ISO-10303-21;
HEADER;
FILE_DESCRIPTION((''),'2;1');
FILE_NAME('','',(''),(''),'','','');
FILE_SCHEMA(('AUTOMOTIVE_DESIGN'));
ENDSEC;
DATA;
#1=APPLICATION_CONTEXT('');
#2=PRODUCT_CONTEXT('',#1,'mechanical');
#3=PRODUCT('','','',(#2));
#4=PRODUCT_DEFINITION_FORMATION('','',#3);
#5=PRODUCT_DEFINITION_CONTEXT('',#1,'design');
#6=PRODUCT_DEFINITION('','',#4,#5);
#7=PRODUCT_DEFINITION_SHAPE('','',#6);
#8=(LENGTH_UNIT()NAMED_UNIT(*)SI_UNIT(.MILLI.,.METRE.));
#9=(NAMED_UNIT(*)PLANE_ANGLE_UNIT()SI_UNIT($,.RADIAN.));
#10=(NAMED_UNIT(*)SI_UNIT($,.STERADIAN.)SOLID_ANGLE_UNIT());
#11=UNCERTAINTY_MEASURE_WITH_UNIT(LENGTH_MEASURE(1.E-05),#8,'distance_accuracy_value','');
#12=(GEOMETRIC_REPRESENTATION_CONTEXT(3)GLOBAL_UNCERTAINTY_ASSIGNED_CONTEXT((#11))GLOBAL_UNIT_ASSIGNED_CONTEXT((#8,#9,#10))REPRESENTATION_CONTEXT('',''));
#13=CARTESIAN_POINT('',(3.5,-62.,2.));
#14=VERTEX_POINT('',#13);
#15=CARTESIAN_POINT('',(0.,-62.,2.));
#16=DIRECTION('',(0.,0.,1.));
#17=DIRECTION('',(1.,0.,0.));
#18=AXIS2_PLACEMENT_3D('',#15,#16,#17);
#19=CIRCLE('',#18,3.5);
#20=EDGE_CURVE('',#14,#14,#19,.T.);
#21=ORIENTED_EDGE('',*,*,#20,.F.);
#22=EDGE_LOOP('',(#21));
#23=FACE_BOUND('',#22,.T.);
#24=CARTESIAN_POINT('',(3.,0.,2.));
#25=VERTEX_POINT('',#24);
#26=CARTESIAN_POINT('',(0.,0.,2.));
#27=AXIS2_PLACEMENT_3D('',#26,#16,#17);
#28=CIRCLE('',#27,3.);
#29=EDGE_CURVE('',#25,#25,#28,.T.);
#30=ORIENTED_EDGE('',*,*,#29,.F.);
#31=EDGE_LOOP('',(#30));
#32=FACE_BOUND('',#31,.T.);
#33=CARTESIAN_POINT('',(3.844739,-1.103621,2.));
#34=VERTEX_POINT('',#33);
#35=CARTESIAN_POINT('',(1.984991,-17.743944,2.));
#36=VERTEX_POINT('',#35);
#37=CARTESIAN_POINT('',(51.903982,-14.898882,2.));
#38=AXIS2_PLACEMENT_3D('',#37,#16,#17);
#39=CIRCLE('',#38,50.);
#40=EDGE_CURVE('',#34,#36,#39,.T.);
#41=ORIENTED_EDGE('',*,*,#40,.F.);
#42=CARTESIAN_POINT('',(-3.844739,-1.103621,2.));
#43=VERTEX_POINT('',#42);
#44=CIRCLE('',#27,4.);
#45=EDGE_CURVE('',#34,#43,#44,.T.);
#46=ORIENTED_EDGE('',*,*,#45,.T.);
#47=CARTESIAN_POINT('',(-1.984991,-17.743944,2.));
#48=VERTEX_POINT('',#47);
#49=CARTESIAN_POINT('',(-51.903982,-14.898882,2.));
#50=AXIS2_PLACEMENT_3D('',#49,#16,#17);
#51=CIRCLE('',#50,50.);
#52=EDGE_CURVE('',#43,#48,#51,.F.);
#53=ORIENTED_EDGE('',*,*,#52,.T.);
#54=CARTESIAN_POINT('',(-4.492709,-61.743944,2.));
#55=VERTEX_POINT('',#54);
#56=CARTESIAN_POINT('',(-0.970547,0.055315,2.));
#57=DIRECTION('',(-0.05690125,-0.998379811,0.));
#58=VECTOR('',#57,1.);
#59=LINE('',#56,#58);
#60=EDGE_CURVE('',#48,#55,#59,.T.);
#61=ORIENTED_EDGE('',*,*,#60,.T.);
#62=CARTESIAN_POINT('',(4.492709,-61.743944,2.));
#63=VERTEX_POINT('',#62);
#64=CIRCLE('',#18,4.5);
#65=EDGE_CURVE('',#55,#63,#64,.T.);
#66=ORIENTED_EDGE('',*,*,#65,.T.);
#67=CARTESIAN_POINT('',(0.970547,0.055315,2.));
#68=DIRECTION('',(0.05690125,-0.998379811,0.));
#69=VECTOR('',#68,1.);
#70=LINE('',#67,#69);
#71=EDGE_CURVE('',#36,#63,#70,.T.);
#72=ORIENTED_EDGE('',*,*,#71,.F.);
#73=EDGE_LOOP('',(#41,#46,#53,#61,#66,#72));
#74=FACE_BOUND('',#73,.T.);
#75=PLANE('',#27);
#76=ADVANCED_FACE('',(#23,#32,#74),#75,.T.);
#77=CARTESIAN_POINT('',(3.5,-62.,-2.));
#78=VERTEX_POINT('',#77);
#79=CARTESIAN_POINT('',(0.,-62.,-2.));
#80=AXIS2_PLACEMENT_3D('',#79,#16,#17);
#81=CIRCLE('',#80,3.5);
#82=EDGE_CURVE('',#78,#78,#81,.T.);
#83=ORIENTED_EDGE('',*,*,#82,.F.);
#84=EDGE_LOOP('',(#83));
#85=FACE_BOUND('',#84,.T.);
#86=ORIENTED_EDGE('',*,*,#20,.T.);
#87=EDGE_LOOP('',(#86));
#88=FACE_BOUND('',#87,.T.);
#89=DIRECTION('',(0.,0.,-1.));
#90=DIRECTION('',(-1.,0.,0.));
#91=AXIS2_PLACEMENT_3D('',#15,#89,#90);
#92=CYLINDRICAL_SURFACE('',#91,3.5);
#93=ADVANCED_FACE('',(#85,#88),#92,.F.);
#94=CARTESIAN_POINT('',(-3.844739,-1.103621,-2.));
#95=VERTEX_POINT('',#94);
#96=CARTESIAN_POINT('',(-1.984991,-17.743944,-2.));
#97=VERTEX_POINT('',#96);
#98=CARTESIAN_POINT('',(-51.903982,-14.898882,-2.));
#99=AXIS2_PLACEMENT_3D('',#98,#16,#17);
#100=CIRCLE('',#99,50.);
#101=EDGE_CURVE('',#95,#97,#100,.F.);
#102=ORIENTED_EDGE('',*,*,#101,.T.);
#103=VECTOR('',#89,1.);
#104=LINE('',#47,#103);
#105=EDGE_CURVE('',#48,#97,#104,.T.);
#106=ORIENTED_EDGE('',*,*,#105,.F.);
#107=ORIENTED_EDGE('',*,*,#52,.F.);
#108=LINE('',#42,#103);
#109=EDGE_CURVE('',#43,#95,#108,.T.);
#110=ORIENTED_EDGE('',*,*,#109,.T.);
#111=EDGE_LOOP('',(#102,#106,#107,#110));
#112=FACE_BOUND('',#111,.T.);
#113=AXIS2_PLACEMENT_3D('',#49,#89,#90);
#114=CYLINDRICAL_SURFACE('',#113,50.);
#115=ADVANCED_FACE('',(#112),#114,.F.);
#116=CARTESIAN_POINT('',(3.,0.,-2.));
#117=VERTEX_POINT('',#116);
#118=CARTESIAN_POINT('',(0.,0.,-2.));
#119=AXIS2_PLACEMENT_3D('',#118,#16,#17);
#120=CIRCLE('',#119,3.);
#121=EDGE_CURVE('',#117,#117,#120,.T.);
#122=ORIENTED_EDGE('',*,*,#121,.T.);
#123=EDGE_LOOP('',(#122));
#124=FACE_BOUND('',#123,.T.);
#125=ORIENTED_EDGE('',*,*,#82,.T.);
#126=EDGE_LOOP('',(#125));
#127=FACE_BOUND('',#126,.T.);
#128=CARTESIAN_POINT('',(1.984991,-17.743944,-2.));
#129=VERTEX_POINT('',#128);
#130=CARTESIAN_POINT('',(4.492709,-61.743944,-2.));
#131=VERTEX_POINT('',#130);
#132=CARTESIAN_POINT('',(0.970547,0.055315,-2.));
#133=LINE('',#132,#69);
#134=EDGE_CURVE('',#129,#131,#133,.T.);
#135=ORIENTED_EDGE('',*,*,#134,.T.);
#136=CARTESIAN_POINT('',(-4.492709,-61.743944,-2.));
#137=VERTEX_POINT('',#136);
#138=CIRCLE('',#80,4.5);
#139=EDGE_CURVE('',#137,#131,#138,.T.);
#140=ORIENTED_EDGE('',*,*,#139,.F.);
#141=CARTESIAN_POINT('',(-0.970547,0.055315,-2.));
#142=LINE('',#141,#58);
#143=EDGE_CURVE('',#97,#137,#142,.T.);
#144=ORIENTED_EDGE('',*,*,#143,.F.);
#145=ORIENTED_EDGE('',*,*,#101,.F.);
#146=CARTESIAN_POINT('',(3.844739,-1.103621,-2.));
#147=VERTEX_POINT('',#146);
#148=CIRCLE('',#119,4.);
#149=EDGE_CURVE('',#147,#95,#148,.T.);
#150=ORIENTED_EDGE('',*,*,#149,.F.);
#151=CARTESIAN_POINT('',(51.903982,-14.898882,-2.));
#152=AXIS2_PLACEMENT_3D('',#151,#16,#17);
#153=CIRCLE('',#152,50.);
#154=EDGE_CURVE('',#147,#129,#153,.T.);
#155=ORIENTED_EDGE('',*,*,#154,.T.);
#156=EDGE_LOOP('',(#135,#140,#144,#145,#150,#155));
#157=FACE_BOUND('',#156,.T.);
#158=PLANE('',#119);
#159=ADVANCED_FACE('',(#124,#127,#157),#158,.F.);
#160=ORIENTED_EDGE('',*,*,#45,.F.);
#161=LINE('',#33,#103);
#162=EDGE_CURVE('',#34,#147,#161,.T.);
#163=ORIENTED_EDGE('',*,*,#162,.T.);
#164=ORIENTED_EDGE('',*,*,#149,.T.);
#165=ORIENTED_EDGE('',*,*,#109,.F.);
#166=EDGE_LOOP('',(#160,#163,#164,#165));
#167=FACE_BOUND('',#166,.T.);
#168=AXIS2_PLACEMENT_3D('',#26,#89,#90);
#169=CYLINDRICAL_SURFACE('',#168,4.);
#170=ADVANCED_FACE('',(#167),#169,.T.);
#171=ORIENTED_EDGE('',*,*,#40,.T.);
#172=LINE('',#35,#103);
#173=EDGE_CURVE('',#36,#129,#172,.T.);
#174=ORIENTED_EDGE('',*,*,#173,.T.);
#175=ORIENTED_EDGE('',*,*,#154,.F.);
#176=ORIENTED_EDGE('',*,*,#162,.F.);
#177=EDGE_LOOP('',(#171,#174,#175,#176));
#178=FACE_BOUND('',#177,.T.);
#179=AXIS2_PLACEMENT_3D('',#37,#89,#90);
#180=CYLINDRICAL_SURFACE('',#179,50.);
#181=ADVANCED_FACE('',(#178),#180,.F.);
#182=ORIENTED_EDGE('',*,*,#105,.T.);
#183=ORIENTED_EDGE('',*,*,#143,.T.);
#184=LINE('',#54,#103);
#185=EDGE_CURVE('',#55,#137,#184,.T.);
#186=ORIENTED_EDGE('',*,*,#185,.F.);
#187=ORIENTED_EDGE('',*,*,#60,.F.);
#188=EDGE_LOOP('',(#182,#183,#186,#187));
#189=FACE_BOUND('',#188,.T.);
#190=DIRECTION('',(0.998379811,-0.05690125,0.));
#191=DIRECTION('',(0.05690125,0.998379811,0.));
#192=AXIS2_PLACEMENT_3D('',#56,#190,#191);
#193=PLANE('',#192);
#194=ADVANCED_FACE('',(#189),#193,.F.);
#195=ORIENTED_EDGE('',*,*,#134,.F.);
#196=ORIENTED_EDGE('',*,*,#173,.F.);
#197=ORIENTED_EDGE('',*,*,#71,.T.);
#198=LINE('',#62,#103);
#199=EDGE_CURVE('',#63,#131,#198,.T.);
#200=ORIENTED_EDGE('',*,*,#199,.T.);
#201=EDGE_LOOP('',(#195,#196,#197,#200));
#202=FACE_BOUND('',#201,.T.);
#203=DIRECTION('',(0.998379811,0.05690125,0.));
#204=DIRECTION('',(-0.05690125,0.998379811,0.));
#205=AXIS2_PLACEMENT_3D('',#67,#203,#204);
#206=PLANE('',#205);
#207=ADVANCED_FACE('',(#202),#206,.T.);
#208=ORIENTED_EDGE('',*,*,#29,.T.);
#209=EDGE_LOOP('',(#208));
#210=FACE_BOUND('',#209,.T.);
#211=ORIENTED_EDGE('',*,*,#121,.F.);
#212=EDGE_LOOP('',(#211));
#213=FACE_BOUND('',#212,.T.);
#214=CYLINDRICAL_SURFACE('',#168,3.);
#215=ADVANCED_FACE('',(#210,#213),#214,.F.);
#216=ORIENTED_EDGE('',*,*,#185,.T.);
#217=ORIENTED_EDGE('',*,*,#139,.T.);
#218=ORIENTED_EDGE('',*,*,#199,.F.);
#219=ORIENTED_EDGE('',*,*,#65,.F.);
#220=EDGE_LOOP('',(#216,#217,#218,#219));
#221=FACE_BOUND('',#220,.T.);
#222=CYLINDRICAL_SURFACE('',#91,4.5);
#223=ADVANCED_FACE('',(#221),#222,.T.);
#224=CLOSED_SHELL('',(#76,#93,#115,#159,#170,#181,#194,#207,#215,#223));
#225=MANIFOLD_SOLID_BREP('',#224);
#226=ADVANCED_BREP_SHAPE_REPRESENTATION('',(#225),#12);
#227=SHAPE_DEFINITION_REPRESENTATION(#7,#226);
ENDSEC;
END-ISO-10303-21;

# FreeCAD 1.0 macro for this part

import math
import FreeCAD as App
import Part
import Sketcher
Q = App.Units.Quantity

doc = App.newDocument("Part")
body = doc.addObject("PartDesign::Body", "Body")

sketch1 = body.newObject("Sketcher::SketchObject", "Sketch")
sketch1.AttachmentSupport = (doc.getObject("XY_Plane"), [""])
sketch1.MapMode = "FlatFace"
sketch1.addGeometry(Part.ArcOfCircle(Part.Circle(App.Vector(-51.9, -14.9, 0), App.Vector(0, 0, 1), 50), math.radians(-3.26), math.radians(16.02)), False)
sketch1.addGeometry(Part.LineSegment(App.Vector(-2, -17.7, 0), App.Vector(-4.5, -61.7, 0)), False)
sketch1.addGeometry(Part.ArcOfCircle(Part.Circle(App.Vector(0, -62, 0), App.Vector(0, 0, 1), 4.5), math.radians(177), math.radians(363)), False)
sketch1.addGeometry(Part.LineSegment(App.Vector(4.5, -61.7, 0), App.Vector(2, -17.7, 0)), False)
sketch1.addGeometry(Part.ArcOfCircle(Part.Circle(App.Vector(51.9, -14.9, 0), App.Vector(0, 0, 1), 50), math.radians(163.98), math.radians(183.26)), False)
sketch1.addGeometry(Part.ArcOfCircle(Part.Circle(App.Vector(0, 0, 0), App.Vector(0, 0, 1), 4), math.radians(-16), math.radians(196)), False)
sketch1.addGeometry(Part.Circle(App.Vector(0, -62, 0), App.Vector(0, 0, 1), 3.5), False)
sketch1.addGeometry(Part.Circle(App.Vector(0, 0, 0), App.Vector(0, 0, 1), 3), False)
sketch1.addConstraint(Sketcher.Constraint("Tangent", 0, 1, 1, 1))
sketch1.addConstraint(Sketcher.Constraint("Tangent", 1, 2, 2, 1))
sketch1.addConstraint(Sketcher.Constraint("Tangent", 2, 2, 3, 1))
sketch1.addConstraint(Sketcher.Constraint("Tangent", 3, 2, 4, 2))
sketch1.addConstraint(Sketcher.Constraint("Tangent", 4, 1, 5, 1))
sketch1.addConstraint(Sketcher.Constraint("Tangent", 5, 2, 0, 2))
sketch1.addConstraint(Sketcher.Constraint("Coincident", 5, 3, -1, 1))
sketch1.addConstraint(Sketcher.Constraint("Coincident", 7, 3, -1, 1))
sketch1.addConstraint(Sketcher.Constraint("Coincident", 6, 3, 2, 3))
sketch1.addConstraint(Sketcher.Constraint("Equal", 0, 4))
sketch1.addConstraint(Sketcher.Constraint("Symmetric", 1, 2, 2, 2, -2))
sketch1.addConstraint(Sketcher.Constraint("Diameter", 6, Q("7 mm")))
sketch1.addConstraint(Sketcher.Constraint("Diameter", 7, Q("6 mm")))
sketch1.addConstraint(Sketcher.Constraint("Radius", 0, Q("50 mm")))
sketch1.addConstraint(Sketcher.Constraint("Radius", 5, Q("4 mm")))
sketch1.addConstraint(Sketcher.Constraint("Radius", 2, Q("4.5 mm")))
sketch1.addConstraint(Sketcher.Constraint("DistanceY", 2, 3, -1, 1, Q("62 mm")))
sketch1.addConstraint(Sketcher.Constraint("DistanceY", 1, 2, 0, 1, Q("44 mm")))
pad1 = body.newObject("PartDesign::Pad", "Pad")
pad1.Profile = sketch1
pad1.Length = 4
pad1.Midplane = True

doc.recompute()
